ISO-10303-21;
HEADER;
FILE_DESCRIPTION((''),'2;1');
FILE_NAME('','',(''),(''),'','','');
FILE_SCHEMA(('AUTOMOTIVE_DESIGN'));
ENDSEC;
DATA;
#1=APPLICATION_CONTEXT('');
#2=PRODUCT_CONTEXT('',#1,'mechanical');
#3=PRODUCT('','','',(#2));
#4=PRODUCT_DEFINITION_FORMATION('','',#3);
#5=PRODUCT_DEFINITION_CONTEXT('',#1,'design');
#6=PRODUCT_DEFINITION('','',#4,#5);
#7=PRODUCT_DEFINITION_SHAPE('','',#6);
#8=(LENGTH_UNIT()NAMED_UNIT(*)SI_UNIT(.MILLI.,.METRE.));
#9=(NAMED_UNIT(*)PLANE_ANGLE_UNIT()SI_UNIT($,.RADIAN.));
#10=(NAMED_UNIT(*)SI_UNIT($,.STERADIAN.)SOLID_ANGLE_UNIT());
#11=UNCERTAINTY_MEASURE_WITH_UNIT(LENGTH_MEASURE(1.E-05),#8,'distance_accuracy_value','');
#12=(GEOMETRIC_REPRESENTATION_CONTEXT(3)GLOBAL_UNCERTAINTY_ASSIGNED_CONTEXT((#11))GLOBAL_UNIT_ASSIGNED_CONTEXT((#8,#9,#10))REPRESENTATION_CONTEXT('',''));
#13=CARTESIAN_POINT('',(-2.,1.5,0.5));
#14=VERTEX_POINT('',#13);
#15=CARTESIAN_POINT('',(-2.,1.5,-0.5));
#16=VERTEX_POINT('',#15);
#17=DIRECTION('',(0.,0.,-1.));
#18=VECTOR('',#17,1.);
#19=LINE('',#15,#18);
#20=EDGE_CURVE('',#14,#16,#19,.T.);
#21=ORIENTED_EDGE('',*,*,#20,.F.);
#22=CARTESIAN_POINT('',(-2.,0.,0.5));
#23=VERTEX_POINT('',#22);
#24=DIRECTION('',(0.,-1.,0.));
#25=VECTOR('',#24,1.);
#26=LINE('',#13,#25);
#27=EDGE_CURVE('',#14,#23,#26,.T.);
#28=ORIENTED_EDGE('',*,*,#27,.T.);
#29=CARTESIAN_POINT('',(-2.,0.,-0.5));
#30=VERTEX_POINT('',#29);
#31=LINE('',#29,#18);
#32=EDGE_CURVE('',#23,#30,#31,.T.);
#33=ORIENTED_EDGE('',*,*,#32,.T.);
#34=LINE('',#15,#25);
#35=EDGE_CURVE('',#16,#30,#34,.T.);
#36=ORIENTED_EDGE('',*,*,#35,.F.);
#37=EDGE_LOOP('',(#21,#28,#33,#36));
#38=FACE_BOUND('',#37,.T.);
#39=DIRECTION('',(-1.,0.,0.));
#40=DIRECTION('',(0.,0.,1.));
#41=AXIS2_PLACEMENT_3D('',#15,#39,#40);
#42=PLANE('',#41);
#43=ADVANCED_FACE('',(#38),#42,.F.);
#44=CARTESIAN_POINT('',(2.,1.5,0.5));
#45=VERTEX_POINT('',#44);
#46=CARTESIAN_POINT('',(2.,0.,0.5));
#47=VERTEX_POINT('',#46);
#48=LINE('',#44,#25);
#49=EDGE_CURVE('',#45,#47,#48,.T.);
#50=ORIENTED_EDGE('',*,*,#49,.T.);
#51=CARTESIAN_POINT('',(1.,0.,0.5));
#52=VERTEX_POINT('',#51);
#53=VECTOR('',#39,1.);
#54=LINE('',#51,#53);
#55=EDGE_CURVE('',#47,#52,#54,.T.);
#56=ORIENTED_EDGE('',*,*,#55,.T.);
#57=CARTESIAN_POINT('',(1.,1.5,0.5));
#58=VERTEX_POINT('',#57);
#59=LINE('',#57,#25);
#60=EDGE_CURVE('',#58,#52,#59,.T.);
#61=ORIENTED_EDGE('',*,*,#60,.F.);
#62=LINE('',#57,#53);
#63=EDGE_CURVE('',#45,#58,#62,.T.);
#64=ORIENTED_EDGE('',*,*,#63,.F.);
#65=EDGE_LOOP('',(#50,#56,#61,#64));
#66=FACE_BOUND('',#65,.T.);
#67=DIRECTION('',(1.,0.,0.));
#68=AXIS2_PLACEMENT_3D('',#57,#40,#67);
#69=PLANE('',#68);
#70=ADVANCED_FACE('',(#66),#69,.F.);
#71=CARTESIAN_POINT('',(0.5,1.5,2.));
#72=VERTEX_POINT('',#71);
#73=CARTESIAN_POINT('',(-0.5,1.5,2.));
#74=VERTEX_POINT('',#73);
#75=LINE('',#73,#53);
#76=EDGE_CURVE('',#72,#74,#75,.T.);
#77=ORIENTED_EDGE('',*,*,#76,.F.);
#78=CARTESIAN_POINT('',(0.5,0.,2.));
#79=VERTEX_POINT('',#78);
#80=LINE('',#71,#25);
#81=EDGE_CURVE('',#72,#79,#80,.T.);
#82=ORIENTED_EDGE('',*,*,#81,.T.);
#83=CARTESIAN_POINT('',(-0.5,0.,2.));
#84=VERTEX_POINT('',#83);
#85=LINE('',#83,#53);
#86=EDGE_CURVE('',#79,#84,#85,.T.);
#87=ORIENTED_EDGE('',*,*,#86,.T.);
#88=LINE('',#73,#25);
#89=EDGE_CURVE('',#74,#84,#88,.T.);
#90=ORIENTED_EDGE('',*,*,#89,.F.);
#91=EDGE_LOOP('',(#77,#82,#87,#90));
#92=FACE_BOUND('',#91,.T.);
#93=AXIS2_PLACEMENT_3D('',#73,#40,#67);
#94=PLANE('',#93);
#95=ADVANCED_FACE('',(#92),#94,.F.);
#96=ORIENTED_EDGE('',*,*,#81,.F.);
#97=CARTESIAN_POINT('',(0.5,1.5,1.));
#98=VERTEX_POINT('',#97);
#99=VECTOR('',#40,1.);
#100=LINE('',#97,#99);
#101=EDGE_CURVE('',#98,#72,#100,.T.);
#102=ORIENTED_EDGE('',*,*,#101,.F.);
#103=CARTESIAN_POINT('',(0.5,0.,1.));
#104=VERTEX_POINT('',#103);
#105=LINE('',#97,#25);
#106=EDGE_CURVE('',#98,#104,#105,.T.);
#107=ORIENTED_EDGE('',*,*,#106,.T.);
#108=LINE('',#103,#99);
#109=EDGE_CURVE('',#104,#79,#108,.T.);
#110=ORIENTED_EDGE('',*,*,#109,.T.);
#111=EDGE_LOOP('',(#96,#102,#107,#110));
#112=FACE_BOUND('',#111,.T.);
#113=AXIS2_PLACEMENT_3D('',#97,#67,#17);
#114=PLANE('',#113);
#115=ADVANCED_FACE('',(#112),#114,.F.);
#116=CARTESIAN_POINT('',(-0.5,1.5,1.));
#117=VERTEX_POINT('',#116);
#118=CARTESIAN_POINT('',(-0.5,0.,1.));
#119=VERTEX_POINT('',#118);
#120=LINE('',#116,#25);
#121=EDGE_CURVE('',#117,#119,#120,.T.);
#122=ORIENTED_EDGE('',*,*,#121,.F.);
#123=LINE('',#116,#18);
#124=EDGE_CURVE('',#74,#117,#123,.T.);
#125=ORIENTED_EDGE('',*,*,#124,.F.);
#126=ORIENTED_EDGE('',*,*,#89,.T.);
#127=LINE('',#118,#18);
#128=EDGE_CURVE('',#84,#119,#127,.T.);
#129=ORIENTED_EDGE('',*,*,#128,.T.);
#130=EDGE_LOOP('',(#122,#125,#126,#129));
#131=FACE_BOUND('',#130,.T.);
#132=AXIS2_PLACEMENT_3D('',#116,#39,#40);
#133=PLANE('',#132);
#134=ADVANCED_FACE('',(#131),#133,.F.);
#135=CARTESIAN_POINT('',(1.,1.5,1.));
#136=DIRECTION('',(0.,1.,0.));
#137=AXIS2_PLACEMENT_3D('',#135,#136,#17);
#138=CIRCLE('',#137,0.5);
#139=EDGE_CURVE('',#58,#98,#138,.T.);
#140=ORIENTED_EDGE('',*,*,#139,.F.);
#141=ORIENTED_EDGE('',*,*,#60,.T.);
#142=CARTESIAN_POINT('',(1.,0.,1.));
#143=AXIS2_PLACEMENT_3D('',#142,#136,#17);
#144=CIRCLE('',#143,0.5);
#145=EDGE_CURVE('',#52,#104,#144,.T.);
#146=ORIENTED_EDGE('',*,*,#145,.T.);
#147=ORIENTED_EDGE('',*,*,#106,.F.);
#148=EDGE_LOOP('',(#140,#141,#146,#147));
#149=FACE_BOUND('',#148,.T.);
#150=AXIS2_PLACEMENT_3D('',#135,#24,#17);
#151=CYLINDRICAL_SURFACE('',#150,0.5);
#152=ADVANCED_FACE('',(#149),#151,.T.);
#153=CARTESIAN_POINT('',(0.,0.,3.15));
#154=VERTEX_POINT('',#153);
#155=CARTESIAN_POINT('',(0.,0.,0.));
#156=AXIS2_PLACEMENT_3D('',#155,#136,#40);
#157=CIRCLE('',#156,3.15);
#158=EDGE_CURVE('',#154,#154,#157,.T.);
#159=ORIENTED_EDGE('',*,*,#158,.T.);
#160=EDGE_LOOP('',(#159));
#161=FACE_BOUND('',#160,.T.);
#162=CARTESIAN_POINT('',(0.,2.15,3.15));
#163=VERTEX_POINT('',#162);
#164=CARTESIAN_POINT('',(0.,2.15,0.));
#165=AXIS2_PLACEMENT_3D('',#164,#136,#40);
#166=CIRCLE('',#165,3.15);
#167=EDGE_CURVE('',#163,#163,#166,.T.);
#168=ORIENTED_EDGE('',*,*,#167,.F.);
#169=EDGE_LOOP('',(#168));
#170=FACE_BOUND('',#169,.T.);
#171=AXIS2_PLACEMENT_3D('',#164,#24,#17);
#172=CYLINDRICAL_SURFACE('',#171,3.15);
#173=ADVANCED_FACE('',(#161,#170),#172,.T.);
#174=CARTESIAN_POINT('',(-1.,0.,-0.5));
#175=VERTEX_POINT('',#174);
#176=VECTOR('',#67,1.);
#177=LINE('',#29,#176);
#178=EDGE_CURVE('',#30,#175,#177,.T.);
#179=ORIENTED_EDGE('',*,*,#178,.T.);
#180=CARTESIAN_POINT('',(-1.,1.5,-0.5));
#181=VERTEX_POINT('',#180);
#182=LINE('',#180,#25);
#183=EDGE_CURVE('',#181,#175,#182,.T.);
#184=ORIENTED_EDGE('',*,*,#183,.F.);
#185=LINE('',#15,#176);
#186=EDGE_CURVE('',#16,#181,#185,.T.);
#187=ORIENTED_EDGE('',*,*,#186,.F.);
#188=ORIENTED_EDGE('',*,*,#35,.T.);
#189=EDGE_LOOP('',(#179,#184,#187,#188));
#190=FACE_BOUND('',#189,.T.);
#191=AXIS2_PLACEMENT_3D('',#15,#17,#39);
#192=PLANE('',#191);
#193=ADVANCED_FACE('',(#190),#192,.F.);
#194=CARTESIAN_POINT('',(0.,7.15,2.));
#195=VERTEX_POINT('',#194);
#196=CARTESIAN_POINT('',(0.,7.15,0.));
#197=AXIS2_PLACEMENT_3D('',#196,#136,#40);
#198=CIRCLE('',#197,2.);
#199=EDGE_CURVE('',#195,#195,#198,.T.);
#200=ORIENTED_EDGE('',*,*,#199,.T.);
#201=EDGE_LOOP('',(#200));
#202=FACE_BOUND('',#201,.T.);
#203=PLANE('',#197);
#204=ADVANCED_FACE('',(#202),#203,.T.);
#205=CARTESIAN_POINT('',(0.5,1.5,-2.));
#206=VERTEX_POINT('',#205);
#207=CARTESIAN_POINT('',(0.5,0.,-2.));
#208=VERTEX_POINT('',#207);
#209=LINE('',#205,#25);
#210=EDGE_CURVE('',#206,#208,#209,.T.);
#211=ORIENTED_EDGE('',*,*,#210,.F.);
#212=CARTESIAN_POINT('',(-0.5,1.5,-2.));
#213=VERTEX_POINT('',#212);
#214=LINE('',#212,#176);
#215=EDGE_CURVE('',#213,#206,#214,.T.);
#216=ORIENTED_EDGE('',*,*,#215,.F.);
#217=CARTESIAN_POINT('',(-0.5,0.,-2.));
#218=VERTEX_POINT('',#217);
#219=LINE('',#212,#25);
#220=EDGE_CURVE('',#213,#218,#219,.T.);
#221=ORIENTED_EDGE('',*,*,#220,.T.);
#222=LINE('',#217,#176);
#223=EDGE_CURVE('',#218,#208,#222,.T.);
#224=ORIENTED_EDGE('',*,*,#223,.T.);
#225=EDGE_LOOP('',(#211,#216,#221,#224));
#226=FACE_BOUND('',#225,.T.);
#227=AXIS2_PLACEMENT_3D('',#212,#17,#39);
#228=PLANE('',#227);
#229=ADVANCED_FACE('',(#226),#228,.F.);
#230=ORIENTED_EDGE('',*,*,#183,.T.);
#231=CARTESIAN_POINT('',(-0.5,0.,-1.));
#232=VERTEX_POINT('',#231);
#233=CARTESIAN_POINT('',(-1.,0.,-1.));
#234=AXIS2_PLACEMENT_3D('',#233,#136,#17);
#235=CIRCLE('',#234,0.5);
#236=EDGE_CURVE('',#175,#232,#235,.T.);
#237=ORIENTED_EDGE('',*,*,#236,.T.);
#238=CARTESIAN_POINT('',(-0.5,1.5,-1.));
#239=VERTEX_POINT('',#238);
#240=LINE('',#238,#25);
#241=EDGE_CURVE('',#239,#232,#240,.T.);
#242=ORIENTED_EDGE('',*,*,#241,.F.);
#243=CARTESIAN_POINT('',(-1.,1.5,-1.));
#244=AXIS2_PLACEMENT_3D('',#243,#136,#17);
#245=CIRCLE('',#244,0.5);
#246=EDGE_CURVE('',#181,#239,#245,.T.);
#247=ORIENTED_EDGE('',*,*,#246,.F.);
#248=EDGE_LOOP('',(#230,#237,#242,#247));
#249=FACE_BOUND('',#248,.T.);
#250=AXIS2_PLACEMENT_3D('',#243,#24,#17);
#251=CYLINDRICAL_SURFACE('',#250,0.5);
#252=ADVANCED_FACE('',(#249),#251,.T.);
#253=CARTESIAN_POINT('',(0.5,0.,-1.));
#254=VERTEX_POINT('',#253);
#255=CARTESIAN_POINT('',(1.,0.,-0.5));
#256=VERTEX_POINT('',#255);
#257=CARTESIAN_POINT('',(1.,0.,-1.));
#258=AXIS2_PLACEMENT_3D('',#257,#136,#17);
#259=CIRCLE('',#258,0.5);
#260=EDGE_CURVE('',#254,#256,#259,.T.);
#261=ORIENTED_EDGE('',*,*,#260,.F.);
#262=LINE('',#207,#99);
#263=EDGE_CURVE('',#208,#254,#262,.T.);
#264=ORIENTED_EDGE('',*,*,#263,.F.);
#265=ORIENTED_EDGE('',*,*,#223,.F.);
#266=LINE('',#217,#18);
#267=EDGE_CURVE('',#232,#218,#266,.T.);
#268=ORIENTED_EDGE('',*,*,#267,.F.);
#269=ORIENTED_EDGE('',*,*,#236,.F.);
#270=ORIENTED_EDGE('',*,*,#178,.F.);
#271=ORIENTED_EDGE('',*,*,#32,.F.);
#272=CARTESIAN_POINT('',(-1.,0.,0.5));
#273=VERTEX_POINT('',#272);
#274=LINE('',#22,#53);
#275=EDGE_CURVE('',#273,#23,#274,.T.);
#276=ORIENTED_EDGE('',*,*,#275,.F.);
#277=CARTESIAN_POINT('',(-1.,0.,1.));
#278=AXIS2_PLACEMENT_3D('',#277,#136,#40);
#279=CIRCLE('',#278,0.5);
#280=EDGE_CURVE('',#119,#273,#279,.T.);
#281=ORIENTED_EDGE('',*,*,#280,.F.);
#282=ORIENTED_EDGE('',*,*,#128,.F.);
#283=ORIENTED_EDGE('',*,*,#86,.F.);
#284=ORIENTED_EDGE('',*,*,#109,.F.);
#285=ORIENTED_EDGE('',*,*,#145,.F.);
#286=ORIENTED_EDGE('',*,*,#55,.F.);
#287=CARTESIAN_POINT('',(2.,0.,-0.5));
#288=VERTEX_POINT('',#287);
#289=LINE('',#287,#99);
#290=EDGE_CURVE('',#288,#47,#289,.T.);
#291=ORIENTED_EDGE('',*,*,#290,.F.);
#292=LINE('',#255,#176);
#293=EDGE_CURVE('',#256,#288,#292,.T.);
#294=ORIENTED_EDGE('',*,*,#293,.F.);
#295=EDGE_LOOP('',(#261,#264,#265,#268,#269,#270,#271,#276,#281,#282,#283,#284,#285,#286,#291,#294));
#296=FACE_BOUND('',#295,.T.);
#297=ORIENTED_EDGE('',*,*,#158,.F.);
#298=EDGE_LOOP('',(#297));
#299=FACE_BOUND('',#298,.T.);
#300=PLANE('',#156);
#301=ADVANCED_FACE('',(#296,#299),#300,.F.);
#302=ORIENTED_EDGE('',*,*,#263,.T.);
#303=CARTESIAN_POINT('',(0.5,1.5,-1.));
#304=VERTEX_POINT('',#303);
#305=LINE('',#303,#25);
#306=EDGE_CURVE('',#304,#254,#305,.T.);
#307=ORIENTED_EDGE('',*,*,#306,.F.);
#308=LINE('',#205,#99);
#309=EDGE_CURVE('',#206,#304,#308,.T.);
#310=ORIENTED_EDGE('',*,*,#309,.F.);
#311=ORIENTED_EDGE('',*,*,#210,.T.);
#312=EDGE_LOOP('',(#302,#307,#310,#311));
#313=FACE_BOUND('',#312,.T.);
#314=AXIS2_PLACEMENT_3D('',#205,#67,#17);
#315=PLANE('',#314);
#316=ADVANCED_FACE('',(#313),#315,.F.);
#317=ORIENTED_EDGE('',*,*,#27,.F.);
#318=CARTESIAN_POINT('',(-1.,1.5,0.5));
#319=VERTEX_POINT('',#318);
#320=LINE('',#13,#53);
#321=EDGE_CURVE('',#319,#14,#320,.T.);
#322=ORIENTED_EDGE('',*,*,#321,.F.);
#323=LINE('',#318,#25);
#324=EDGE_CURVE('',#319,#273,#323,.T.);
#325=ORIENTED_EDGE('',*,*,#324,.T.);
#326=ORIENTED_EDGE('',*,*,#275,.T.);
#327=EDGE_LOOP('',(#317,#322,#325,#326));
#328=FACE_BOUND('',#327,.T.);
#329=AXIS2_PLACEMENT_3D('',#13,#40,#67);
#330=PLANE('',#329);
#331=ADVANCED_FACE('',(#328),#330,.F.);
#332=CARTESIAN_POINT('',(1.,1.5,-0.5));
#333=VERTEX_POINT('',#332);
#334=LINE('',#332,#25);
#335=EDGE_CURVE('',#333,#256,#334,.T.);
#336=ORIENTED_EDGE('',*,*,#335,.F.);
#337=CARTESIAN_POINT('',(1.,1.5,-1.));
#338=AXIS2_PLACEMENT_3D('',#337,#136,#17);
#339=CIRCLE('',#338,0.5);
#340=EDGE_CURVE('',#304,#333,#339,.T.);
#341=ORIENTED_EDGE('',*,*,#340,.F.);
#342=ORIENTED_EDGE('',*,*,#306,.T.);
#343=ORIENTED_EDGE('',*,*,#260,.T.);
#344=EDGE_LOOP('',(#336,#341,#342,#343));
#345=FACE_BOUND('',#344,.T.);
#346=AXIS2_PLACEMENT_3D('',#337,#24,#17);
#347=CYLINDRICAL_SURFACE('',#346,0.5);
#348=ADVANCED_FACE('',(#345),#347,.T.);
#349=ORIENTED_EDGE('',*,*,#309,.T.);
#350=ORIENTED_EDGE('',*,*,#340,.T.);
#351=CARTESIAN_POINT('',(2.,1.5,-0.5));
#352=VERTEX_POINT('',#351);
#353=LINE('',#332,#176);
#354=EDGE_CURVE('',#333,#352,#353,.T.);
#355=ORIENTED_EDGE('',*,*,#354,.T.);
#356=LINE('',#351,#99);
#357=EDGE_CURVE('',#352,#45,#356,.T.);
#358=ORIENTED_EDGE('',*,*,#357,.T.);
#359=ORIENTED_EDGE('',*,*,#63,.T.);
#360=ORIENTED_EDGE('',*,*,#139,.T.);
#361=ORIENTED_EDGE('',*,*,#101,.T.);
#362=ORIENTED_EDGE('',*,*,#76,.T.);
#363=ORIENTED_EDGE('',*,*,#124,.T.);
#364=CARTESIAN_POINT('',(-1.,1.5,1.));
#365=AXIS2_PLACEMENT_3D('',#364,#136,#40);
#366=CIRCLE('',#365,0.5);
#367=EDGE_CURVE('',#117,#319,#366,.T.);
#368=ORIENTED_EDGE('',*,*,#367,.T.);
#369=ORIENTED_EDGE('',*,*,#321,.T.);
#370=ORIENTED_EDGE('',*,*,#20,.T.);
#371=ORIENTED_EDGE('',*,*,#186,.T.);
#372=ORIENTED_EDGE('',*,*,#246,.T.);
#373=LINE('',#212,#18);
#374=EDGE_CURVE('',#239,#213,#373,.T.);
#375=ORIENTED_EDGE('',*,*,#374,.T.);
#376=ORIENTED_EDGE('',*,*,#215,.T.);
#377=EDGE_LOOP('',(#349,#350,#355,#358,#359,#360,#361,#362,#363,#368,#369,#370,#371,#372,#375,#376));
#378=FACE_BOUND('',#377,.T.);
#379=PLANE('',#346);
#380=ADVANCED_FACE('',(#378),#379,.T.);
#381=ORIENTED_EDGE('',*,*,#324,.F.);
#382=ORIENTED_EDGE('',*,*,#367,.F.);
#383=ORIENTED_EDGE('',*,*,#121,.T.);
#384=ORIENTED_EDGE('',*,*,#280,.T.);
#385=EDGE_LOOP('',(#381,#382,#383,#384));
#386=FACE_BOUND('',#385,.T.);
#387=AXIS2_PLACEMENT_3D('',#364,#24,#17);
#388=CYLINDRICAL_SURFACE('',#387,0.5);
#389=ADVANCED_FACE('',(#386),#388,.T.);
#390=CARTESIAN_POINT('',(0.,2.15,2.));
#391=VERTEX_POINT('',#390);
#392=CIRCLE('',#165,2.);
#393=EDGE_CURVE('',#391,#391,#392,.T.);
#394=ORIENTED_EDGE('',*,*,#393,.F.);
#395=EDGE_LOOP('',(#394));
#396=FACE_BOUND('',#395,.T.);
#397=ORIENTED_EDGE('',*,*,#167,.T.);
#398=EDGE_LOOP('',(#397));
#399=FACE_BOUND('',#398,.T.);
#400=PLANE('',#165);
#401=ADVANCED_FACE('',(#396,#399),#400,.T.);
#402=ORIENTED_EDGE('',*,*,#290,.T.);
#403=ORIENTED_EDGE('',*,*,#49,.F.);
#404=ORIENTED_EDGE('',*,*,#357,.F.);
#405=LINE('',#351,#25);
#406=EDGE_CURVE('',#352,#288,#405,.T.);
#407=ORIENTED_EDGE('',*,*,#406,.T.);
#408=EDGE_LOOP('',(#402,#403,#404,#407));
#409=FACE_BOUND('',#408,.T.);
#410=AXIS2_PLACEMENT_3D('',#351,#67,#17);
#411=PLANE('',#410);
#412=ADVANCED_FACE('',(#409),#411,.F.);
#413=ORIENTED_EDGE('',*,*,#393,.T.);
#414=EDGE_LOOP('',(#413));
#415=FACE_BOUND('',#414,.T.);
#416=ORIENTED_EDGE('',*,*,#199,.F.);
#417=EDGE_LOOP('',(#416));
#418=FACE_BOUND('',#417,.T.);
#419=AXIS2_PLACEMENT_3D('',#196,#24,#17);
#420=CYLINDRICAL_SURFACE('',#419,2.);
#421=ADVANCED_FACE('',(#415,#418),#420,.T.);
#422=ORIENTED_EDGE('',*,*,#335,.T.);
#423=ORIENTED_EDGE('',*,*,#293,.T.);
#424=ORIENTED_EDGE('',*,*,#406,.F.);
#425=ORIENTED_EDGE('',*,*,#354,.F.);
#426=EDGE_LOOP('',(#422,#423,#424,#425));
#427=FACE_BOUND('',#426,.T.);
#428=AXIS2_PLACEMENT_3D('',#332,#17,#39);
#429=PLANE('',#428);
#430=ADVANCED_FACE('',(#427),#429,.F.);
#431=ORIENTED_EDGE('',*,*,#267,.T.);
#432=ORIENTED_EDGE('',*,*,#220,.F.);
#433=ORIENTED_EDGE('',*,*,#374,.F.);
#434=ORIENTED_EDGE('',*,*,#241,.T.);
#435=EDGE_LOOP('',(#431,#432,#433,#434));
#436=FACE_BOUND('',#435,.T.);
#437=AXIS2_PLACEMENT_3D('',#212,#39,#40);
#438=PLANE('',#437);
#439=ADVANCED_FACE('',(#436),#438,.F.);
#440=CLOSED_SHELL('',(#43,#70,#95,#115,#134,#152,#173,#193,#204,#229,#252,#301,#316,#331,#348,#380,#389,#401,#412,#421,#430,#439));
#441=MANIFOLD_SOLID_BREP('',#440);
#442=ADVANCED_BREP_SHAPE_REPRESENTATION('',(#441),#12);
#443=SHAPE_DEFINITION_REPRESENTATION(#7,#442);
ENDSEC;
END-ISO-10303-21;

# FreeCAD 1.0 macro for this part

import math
import FreeCAD as App
import Part
import Sketcher

doc = App.newDocument("Part")
body = doc.addObject("PartDesign::Body", "Body")

sketch1 = body.newObject("Sketcher::SketchObject", "Sketch")
sketch1.AttachmentSupport = (doc.getObject("XZ_Plane"), [""])
sketch1.MapMode = "FlatFace"
sketch1.addGeometry(Part.Circle(App.Vector(0, 0, 0), App.Vector(0, 0, 1), 3.1), False)
sketch1.addConstraint([
    Sketcher.Constraint("Coincident", 0, 3, -1, 1),
    Sketcher.Constraint("Diameter", 0, 6.3),
])
pad1 = body.newObject("PartDesign::Pad", "Pad")
pad1.Profile = sketch1
pad1.Length = 2.15
pad1.Reversed = True

sketch2 = body.newObject("Sketcher::SketchObject", "Sketch001")
sketch2.AttachmentSupport = (doc.getObject("XZ_Plane"), [""])
sketch2.MapMode = "FlatFace"
sketch2.AttachmentOffset = App.Placement(App.Vector(0, 0, -2.15), App.Rotation())
sketch2.addGeometry(Part.Circle(App.Vector(0, 0, 0), App.Vector(0, 0, 1), 2), False)
sketch2.addConstraint([
    Sketcher.Constraint("Coincident", 0, 3, -1, 1),
    Sketcher.Constraint("Diameter", 0, 4.0),
])
pad2 = body.newObject("PartDesign::Pad", "Pad001")
pad2.Profile = sketch2
pad2.Length = 5
pad2.Reversed = True

sketch3 = body.newObject("Sketcher::SketchObject", "Sketch002")
sketch3.AttachmentSupport = (doc.getObject("XZ_Plane"), [""])
sketch3.MapMode = "FlatFace"
sketch3.addGeometry([
    Part.LineSegment(App.Vector(-0.5, 2, 0), App.Vector(-0.5, 1, 0)),
    Part.ArcOfCircle(Part.Circle(App.Vector(-1, 1, 0), App.Vector(0, 0, 1), 0.5), math.radians(-90), math.radians(0)),
    Part.LineSegment(App.Vector(-1, 0.5, 0), App.Vector(-2, 0.5, 0)),
    Part.LineSegment(App.Vector(-2, 0.5, 0), App.Vector(-2, -0.5, 0)),
    Part.LineSegment(App.Vector(-2, -0.5, 0), App.Vector(-1, -0.5, 0)),
    Part.ArcOfCircle(Part.Circle(App.Vector(-1, -1, 0), App.Vector(0, 0, 1), 0.5), math.radians(0), math.radians(90)),
    Part.LineSegment(App.Vector(-0.5, -1, 0), App.Vector(-0.5, -2, 0)),
    Part.LineSegment(App.Vector(-0.5, -2, 0), App.Vector(0.5, -2, 0)),
    Part.LineSegment(App.Vector(0.5, -2, 0), App.Vector(0.5, -1, 0)),
    Part.ArcOfCircle(Part.Circle(App.Vector(1, -1, 0), App.Vector(0, 0, 1), 0.5), math.radians(90), math.radians(180)),
    Part.LineSegment(App.Vector(1, -0.5, 0), App.Vector(2, -0.5, 0)),
    Part.LineSegment(App.Vector(2, -0.5, 0), App.Vector(2, 0.5, 0)),
    Part.LineSegment(App.Vector(2, 0.5, 0), App.Vector(1, 0.5, 0)),
    Part.ArcOfCircle(Part.Circle(App.Vector(1, 1, 0), App.Vector(0, 0, 1), 0.5), math.radians(180), math.radians(270)),
    Part.LineSegment(App.Vector(0.5, 1, 0), App.Vector(0.5, 2, 0)),
    Part.LineSegment(App.Vector(0.5, 2, 0), App.Vector(-0.5, 2, 0)),
], False)
sketch3.addConstraint([
    Sketcher.Constraint("Tangent", 0, 2, 1, 2),
    Sketcher.Constraint("Tangent", 1, 1, 2, 1),
    Sketcher.Constraint("Coincident", 2, 2, 3, 1),
    Sketcher.Constraint("Coincident", 3, 2, 4, 1),
    Sketcher.Constraint("Tangent", 4, 2, 5, 2),
    Sketcher.Constraint("Tangent", 5, 1, 6, 1),
    Sketcher.Constraint("Coincident", 6, 2, 7, 1),
    Sketcher.Constraint("Coincident", 7, 2, 8, 1),
    Sketcher.Constraint("Tangent", 8, 2, 9, 2),
    Sketcher.Constraint("Tangent", 9, 1, 10, 1),
    Sketcher.Constraint("Coincident", 10, 2, 11, 1),
    Sketcher.Constraint("Coincident", 11, 2, 12, 1),
    Sketcher.Constraint("Tangent", 12, 2, 13, 2),
    Sketcher.Constraint("Tangent", 13, 1, 14, 1),
    Sketcher.Constraint("Coincident", 14, 2, 15, 1),
    Sketcher.Constraint("Coincident", 15, 2, 0, 1),
    Sketcher.Constraint("Vertical", 0),
    Sketcher.Constraint("Horizontal", 2),
    Sketcher.Constraint("Vertical", 3),
    Sketcher.Constraint("Horizontal", 4),
    Sketcher.Constraint("Vertical", 6),
    Sketcher.Constraint("Horizontal", 7),
    Sketcher.Constraint("Vertical", 8),
    Sketcher.Constraint("Horizontal", 10),
    Sketcher.Constraint("Vertical", 11),
    Sketcher.Constraint("Horizontal", 12),
    Sketcher.Constraint("Vertical", 14),
    Sketcher.Constraint("Horizontal", 15),
    Sketcher.Constraint("Equal", 1, 5),
    Sketcher.Constraint("Equal", 5, 9),
    Sketcher.Constraint("Equal", 9, 13),
    Sketcher.Constraint("Symmetric", 1, 3, 9, 3, -1, 1),
    Sketcher.Constraint("Symmetric", 5, 3, 13, 3, -1, 1),
    Sketcher.Constraint("Symmetric", 5, 3, 9, 3, -2),
    Sketcher.Constraint("Equal", 4, 7),
    Sketcher.Constraint("Equal", 7, 10),
    Sketcher.Constraint("Equal", 15, 0),
    Sketcher.Constraint("Equal", 0, 3),
    Sketcher.Constraint("Equal", 3, 6),
    Sketcher.Constraint("Radius", 1, 0.5),
    Sketcher.Constraint("DistanceX", 2, 2, 2, 1, 1.0),
])
pocket1 = body.newObject("PartDesign::Pocket", "Pocket")
pocket1.Profile = sketch3
pocket1.Length = 1.5

doc.recompute()
